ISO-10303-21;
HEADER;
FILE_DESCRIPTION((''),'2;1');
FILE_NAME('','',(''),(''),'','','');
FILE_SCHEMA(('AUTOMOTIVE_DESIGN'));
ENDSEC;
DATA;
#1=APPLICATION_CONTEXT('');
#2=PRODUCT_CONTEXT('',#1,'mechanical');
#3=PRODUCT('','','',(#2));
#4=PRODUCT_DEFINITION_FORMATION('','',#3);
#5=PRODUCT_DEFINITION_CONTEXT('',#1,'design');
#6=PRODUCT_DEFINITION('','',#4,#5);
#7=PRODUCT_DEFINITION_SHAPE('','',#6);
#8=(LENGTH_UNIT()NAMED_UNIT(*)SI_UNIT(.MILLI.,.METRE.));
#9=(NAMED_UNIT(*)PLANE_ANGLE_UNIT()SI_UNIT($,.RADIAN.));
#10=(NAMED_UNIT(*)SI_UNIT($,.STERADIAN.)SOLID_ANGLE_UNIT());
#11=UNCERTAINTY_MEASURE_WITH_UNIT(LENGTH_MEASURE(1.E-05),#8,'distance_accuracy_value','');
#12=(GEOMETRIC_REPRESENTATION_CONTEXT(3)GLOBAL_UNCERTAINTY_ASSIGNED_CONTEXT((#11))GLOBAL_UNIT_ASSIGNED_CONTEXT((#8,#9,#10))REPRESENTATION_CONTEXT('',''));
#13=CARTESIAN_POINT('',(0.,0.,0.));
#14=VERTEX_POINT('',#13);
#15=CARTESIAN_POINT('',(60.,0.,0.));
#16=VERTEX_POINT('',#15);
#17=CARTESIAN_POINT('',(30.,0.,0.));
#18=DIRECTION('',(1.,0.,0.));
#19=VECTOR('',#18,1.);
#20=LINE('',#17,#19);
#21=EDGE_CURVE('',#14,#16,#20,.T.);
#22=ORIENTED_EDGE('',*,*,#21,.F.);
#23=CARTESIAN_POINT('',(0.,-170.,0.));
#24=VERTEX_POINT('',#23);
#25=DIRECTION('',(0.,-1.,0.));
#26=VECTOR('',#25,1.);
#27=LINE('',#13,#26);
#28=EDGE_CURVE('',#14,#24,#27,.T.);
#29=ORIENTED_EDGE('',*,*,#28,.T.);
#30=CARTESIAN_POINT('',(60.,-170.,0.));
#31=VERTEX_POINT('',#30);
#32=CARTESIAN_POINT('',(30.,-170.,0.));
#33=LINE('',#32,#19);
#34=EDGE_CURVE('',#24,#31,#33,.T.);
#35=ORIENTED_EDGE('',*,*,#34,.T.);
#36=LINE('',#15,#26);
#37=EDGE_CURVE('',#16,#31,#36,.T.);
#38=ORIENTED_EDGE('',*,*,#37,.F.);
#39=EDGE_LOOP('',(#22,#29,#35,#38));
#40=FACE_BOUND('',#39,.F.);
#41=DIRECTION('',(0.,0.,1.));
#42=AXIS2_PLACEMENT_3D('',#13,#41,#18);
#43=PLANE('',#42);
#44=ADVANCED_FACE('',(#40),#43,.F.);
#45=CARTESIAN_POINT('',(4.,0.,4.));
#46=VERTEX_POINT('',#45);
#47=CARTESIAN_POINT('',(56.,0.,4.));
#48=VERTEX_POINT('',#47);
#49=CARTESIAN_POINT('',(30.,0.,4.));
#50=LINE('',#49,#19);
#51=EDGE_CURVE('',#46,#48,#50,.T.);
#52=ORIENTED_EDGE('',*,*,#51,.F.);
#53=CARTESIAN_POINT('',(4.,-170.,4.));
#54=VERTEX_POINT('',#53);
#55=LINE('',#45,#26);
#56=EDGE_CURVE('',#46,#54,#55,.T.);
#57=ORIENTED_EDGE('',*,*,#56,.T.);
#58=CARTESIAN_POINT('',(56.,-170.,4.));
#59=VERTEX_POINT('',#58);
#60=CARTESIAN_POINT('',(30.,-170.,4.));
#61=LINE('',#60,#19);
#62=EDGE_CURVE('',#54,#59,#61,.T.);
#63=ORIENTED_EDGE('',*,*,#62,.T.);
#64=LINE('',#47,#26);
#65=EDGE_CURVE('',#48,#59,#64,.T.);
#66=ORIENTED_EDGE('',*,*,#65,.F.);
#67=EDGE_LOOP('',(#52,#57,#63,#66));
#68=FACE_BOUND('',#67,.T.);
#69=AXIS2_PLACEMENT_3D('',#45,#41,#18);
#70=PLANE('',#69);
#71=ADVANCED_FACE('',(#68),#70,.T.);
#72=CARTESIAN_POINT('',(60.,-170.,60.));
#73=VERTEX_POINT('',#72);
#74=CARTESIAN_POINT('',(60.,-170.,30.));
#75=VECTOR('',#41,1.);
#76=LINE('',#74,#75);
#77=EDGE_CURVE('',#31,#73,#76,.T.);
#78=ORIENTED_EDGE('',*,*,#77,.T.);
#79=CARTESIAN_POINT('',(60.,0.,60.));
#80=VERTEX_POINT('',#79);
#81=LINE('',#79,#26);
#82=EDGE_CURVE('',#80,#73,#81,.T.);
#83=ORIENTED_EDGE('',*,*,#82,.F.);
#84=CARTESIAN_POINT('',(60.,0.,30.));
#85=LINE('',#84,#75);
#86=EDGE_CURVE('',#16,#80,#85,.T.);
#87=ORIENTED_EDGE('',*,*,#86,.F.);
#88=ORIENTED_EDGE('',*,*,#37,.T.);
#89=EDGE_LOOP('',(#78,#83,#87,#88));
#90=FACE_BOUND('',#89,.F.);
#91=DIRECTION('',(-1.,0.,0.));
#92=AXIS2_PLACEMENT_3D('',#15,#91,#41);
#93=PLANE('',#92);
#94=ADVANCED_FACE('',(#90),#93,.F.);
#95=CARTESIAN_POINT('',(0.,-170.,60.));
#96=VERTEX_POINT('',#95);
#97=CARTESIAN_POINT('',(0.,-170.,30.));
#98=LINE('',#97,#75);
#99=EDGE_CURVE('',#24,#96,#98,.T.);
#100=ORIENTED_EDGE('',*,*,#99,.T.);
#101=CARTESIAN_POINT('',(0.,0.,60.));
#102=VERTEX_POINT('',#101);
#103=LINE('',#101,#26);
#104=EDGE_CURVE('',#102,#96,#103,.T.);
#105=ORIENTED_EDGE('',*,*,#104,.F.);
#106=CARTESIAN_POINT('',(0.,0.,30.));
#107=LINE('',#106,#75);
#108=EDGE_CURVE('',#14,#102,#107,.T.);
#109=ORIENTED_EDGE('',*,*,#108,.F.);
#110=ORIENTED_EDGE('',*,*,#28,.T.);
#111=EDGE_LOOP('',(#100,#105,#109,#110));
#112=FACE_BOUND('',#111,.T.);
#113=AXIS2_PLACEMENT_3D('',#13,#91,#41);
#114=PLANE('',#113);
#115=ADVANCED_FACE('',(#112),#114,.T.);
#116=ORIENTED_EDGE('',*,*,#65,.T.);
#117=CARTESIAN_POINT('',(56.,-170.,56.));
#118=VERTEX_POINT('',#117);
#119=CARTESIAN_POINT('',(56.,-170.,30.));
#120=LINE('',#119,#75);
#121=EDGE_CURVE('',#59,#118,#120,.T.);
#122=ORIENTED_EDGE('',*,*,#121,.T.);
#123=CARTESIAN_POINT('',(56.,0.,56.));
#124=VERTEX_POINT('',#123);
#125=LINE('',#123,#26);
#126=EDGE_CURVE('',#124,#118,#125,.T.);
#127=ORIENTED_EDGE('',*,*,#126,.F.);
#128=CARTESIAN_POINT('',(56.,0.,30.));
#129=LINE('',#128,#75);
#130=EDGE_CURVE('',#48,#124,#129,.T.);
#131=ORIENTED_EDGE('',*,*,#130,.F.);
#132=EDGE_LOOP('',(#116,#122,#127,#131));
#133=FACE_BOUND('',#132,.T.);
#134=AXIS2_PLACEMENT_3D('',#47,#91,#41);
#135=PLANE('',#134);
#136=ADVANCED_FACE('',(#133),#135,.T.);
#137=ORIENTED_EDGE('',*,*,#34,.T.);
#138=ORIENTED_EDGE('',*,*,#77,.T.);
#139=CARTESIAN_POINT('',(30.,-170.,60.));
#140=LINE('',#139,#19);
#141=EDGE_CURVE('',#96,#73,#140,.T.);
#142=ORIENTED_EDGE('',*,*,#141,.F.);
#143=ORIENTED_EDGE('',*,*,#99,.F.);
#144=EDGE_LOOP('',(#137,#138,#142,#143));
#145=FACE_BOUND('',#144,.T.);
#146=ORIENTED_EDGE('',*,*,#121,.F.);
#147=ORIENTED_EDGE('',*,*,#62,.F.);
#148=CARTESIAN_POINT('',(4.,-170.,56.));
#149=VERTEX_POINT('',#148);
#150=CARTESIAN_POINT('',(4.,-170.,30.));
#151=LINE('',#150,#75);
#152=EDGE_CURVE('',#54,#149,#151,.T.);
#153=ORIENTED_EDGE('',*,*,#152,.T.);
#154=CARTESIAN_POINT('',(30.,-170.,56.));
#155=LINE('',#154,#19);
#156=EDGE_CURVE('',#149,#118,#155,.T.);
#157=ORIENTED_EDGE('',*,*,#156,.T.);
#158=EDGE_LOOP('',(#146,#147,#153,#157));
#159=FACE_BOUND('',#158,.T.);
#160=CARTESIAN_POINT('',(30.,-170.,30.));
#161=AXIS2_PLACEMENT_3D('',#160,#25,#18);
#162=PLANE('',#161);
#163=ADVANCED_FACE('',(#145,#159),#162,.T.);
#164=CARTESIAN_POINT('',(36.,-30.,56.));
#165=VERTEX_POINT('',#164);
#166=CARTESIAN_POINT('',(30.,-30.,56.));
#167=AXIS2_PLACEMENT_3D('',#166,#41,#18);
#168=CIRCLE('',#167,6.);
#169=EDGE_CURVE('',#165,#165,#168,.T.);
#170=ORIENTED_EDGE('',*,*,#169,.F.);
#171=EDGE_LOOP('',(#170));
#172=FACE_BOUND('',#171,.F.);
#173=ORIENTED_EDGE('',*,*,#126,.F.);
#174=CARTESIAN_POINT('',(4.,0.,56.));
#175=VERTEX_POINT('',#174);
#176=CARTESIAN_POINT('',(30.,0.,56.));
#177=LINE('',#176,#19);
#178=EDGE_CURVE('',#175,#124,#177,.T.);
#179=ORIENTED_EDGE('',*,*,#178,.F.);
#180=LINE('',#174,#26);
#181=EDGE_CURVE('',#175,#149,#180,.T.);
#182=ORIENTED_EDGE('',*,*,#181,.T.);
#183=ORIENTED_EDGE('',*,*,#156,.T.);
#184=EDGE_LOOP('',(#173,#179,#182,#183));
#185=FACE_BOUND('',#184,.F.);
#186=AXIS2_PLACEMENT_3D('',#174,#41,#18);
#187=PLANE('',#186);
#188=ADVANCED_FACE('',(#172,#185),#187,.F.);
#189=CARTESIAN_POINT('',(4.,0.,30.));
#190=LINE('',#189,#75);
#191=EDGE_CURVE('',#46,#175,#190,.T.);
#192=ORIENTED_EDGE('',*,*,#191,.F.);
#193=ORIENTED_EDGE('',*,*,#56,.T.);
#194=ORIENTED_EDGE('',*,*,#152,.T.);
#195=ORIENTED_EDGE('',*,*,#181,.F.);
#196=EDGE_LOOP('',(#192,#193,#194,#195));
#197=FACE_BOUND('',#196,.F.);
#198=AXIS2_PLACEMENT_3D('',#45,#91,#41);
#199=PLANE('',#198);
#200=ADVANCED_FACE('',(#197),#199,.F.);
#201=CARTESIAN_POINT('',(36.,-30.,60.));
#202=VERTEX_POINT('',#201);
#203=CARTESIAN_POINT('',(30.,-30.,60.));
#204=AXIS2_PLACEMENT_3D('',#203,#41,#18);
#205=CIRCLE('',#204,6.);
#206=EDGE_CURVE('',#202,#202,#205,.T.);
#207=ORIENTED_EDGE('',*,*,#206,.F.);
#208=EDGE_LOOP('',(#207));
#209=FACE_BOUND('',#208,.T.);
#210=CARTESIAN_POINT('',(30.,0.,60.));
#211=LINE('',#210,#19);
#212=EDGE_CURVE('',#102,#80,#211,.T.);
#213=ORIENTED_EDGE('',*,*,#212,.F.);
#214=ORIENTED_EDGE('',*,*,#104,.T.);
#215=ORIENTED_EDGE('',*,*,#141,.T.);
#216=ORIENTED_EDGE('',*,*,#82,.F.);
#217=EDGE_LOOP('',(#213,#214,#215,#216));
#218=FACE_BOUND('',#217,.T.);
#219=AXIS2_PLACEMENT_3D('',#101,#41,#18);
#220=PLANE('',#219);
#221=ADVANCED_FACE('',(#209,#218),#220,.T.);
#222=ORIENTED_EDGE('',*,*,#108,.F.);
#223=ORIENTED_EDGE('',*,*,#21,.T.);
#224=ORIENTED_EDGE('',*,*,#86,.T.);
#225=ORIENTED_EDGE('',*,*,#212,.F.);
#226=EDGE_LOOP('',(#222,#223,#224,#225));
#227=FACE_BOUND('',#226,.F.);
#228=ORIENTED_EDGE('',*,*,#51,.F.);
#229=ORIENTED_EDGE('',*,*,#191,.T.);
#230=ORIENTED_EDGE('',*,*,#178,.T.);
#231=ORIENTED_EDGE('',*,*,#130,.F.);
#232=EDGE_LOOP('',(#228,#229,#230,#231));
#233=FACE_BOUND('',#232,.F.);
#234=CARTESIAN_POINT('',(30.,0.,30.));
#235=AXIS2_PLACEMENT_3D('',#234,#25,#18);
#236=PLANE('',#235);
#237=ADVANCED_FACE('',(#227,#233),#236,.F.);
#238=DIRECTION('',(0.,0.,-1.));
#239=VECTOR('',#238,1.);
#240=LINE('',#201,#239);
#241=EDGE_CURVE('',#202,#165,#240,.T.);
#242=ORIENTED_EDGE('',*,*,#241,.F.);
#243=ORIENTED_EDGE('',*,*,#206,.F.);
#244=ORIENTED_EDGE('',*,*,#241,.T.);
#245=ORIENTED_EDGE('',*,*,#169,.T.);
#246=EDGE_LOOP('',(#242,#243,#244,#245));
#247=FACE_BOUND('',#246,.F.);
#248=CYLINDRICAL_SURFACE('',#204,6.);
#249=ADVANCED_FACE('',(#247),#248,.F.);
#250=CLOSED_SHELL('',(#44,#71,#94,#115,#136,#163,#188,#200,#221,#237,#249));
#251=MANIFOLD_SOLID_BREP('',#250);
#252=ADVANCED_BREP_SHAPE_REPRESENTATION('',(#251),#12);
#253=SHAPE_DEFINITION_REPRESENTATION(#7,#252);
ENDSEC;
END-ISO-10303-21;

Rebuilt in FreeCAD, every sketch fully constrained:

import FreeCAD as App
import Part
import Sketcher


def add_polygon(sketch, points):
    """Adds a closed chain of lines whose ends are joined by coincident constraints."""
    first, n = sketch.GeometryCount, len(points)
    for a, b in zip(points, points[1:] + points[:1]):
        sketch.addGeometry(Part.LineSegment(App.Vector(*a, 0), App.Vector(*b, 0)), False)
    for i in range(n):
        sketch.addConstraint(Sketcher.Constraint("Coincident", first + i, 2, first + (i + 1) % n, 1))

doc = App.newDocument("Part")
params = doc.addObject("Spreadsheet::Sheet", "Params")
for row, (alias, value) in enumerate([
    ("sketch1_width", "60 mm"),
    ("sketch1_width2", "52 mm"),
    ("pad1_length", "170 mm"),
    ("sketch2_diameter", "12 mm"),
    ("pocket1_length", "10 mm"),
], start=1):
    params.set(f"A{row}", alias)
    params.set(f"B{row}", "=" + value)
    params.setAlias(f"B{row}", alias)

body = doc.addObject("PartDesign::Body", "Body")

sketch1 = body.newObject("Sketcher::SketchObject", "Sketch")
sketch1.AttachmentSupport = (doc.getObject("XZ_Plane"), [""])
sketch1.MapMode = "FlatFace"
add_polygon(sketch1, [(0, 60), (0, 0), (60, 0), (60, 60)])
add_polygon(sketch1, [(56, 4), (4, 4), (4, 56), (56, 56)])
sketch1.addConstraint(Sketcher.Constraint("Vertical", 0))
sketch1.addConstraint(Sketcher.Constraint("Horizontal", 1))
sketch1.addConstraint(Sketcher.Constraint("Vertical", 2))
sketch1.addConstraint(Sketcher.Constraint("Horizontal", 3))
sketch1.addConstraint(Sketcher.Constraint("Horizontal", 4))
sketch1.addConstraint(Sketcher.Constraint("Vertical", 5))
sketch1.addConstraint(Sketcher.Constraint("Horizontal", 6))
sketch1.addConstraint(Sketcher.Constraint("Vertical", 7))
sketch1.addConstraint(Sketcher.Constraint("Coincident", 0, 2, -1, 1))
sketch1.addConstraint(Sketcher.Constraint("Equal", 3, 0))
sketch1.addConstraint(Sketcher.Constraint("Equal", 6, 5))
sketch1.addConstraint(Sketcher.Constraint("DistanceX", 1, 1, 1, 2, 60.0))
sketch1.addConstraint(Sketcher.Constraint("DistanceX", 4, 2, 4, 1, 52.0))
sketch1.addConstraint(Sketcher.Constraint("DistanceX", -1, 1, 4, 2, 4.0))
sketch1.addConstraint(Sketcher.Constraint("DistanceY", -1, 1, 4, 2, 4.0))
sketch1.setExpression("Constraints[19]", "Params.sketch1_width")
sketch1.setExpression("Constraints[20]", "Params.sketch1_width2")
pad1 = body.newObject("PartDesign::Pad", "Pad")
pad1.Profile = sketch1
pad1.setExpression("Length", "Params.pad1_length")

sketch2 = body.newObject("Sketcher::SketchObject", "Sketch001")
sketch2.AttachmentSupport = (doc.getObject("XY_Plane"), [""])
sketch2.MapMode = "FlatFace"
sketch2.AttachmentOffset = App.Placement(App.Vector(0, 0, 60), App.Rotation())
sketch2.addGeometry(Part.Circle(App.Vector(30, -30, 0), App.Vector(0, 0, 1), 6), False)
sketch2.addConstraint(Sketcher.Constraint("Diameter", 0, 12.0))
sketch2.addConstraint(Sketcher.Constraint("DistanceX", -1, 1, 0, 3, 30.0))
sketch2.addConstraint(Sketcher.Constraint("DistanceY", 0, 3, -1, 1, 30.0))
sketch2.setExpression("Constraints[0]", "Params.sketch2_diameter")
pocket1 = body.newObject("PartDesign::Pocket", "Pocket")
pocket1.Profile = sketch2
pocket1.setExpression("Length", "Params.pocket1_length")

doc.recompute()
